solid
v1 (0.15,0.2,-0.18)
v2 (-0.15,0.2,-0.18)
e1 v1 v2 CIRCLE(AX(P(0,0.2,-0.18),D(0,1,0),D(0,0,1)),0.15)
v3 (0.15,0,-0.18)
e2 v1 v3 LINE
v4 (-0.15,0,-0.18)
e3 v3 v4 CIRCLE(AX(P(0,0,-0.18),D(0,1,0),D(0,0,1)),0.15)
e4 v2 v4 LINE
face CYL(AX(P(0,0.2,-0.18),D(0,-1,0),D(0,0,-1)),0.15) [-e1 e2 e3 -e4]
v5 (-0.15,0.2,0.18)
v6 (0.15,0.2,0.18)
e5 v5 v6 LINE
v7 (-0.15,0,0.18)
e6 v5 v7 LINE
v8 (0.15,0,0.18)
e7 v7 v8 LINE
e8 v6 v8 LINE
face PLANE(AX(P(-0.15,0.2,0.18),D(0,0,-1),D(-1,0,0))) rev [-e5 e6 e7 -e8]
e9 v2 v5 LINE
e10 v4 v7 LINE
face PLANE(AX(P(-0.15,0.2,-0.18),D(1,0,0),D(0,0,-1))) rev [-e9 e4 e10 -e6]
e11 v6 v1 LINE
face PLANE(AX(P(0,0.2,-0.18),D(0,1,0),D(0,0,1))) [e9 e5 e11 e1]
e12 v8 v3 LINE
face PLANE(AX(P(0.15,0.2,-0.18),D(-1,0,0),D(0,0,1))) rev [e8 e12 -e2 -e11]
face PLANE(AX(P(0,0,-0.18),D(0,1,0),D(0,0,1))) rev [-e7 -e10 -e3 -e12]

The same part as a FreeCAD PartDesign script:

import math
import FreeCAD as App
import Part
import Sketcher

doc = App.newDocument("Part")
params = doc.addObject("Spreadsheet::Sheet", "Params")
for row, (alias, value) in enumerate([
    ("sketch1_radius", "0.15 mm"),
    ("sketch1_height", "0.36 mm"),
    ("pad1_length", "0.2 mm"),
], start=1):
    params.set(f"A{row}", alias)
    params.set(f"B{row}", "=" + value)
    params.setAlias(f"B{row}", alias)

body = doc.addObject("PartDesign::Body", "Body")

# Sketch on XZ plane
sketch1 = body.newObject("Sketcher::SketchObject", "Sketch")
sketch1.AttachmentSupport = (doc.getObject("XZ_Plane"), [""])
sketch1.MapMode = "FlatFace"
sketch1.addGeometry(Part.LineSegment(App.Vector(-0.15, -0.18, 0), App.Vector(-0.15, 0.18, 0)), False)
sketch1.addGeometry(Part.LineSegment(App.Vector(-0.15, 0.18, 0), App.Vector(0.15, 0.18, 0)), False)
sketch1.addGeometry(Part.LineSegment(App.Vector(0.15, 0.18, 0), App.Vector(0.15, -0.18, 0)), False)
sketch1.addGeometry(Part.ArcOfCircle(Part.Circle(App.Vector(0, -0.18, 0), App.Vector(0, 0, 1), 0.15), math.radians(180), math.radians(360)), False)
sketch1.addConstraint(Sketcher.Constraint("Coincident", 0, 2, 1, 1))
sketch1.addConstraint(Sketcher.Constraint("Coincident", 1, 2, 2, 1))
sketch1.addConstraint(Sketcher.Constraint("Tangent", 2, 2, 3, 2))
sketch1.addConstraint(Sketcher.Constraint("Tangent", 3, 1, 0, 1))
sketch1.addConstraint(Sketcher.Constraint("Vertical", 0))
sketch1.addConstraint(Sketcher.Constraint("Horizontal", 1))
sketch1.addConstraint(Sketcher.Constraint("Vertical", 2))
sketch1.addConstraint(Sketcher.Constraint("Symmetric", 0, 2, 2, 2, -1, 1))
sketch1.addConstraint(Sketcher.Constraint("Radius", 3, 0.15))
sketch1.addConstraint(Sketcher.Constraint("DistanceY", 0, 1, 0, 2, 0.36))
sketch1.setExpression("Constraints[8]", "Params.sketch1_radius")
sketch1.setExpression("Constraints[9]", "Params.sketch1_height")
pad1 = body.newObject("PartDesign::Pad", "Pad")
pad1.Profile = sketch1
pad1.setExpression("Length", "Params.pad1_length")
pad1.Reversed = True

doc.recompute()
